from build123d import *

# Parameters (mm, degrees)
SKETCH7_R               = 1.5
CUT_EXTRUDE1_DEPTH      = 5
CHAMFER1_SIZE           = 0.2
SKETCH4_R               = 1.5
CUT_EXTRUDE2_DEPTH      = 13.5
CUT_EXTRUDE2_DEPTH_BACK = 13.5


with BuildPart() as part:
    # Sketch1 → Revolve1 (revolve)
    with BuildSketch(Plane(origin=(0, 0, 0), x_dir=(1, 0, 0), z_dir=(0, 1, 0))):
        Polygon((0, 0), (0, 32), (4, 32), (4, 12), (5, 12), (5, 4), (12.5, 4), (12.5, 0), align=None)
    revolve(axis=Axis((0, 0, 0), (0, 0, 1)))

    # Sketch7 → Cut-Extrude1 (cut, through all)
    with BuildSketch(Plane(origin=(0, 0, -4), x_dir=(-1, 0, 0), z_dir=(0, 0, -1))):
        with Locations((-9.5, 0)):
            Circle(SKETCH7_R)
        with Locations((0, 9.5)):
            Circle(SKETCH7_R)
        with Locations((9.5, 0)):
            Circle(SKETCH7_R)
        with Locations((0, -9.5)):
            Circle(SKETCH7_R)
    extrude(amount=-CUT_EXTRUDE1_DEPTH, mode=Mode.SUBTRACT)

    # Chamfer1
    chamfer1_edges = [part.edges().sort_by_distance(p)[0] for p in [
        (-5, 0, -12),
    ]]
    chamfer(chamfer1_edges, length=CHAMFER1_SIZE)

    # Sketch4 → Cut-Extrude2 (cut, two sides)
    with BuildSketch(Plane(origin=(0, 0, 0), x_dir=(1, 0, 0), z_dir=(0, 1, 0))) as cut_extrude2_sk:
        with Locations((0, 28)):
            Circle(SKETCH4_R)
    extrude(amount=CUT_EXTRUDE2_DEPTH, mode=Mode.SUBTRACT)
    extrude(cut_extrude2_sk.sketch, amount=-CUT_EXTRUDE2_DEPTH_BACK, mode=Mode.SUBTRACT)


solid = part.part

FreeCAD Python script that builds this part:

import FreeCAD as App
import Part
import Sketcher
from FreeCAD import Vector
Q = App.Units.Quantity


def edges_at(feature, points):
    """Names of the edges that pass closest to the given points."""
    edges = feature.Shape.Edges
    near = lambda p: min(range(len(edges)), key=lambda i: edges[i].distToShape(Part.Vertex(*p))[0])
    return sorted({f"Edge{near(p) + 1}" for p in points})


def add_polygon(sketch, points):
    """Adds a closed chain of lines whose ends are joined by coincident constraints."""
    first, n = sketch.GeometryCount, len(points)
    for a, b in zip(points, points[1:] + points[:1]):
        sketch.addGeometry(Part.LineSegment(App.Vector(*a, 0), App.Vector(*b, 0)), False)
    for i in range(n):
        sketch.addConstraint(Sketcher.Constraint("Coincident", first + i, 2, first + (i + 1) % n, 1))

doc = App.newDocument("Part")
body = doc.addObject("PartDesign::Body", "Body")

# Sketch on XZ plane
sketch1 = doc.addObject("Sketcher::SketchObject", "Sketch")
body.addObject(sketch1)
sketch1.AttachmentSupport = (doc.XZ_Plane, [""])
sketch1.MapMode = "FlatFace"
add_polygon(sketch1, [(0, -32), (0, 0), (12.5, 0), (12.5, -4), (5, -4), (5, -12), (4, -12), (4, -32)])  # lines 0-7
sketch1.addConstraint(Sketcher.Constraint("Vertical", 0))
sketch1.addConstraint(Sketcher.Constraint("Horizontal", 1))
sketch1.addConstraint(Sketcher.Constraint("Vertical", 2))
sketch1.addConstraint(Sketcher.Constraint("Horizontal", 3))
sketch1.addConstraint(Sketcher.Constraint("Vertical", 4))
sketch1.addConstraint(Sketcher.Constraint("Horizontal", 5))
sketch1.addConstraint(Sketcher.Constraint("Vertical", 6))
sketch1.addConstraint(Sketcher.Constraint("Horizontal", 7))
sketch1.addConstraint(Sketcher.Constraint("Coincident", 0, 2, -1, 1))
sketch1.addConstraint(Sketcher.Constraint("Equal", 7, 2))
sketch1.addConstraint(Sketcher.Constraint("DistanceX", 5, 2, 5, 1, Q("1 mm")))
sketch1.addConstraint(Sketcher.Constraint("DistanceX", 7, 2, 7, 1, Q("4 mm")))
sketch1.addConstraint(Sketcher.Constraint("DistanceY", 0, 1, 0, 2, Q("32 mm")))
sketch1.addConstraint(Sketcher.Constraint("DistanceY", 4, 2, 4, 1, Q("8 mm")))
sketch1.addConstraint(Sketcher.Constraint("DistanceX", 1, 1, 1, 2, Q("12.5 mm")))
revolution = doc.addObject("PartDesign::Revolution", "Revolution")
body.addObject(revolution)
revolution.Profile = sketch1
revolution.ReferenceAxis = (sketch1, ["V_Axis"])
revolution.Angle = 360

# Sketch on XY plane
sketch2 = doc.addObject("Sketcher::SketchObject", "Sketch001")
body.addObject(sketch2)
sketch2.AttachmentSupport = (doc.XY_Plane, [""])
sketch2.MapMode = "FlatFace"
sketch2.AttachmentOffset = App.Placement(Vector(0, 0, -4), App.Rotation())
sketch2.addGeometry(Part.Circle(Vector(9.5, 0, 0), Vector(0, 0, 1), 1.5), False)
sketch2.addGeometry(Part.Circle(Vector(0, 9.5, 0), Vector(0, 0, 1), 1.5), False)
sketch2.addGeometry(Part.Circle(Vector(-9.5, 0, 0), Vector(0, 0, 1), 1.5), False)
sketch2.addGeometry(Part.Circle(Vector(0, -9.5, 0), Vector(0, 0, 1), 1.5), False)
sketch2.addConstraint(Sketcher.Constraint("Equal", 0, 1))
sketch2.addConstraint(Sketcher.Constraint("Equal", 1, 2))
sketch2.addConstraint(Sketcher.Constraint("Equal", 2, 3))
sketch2.addConstraint(Sketcher.Constraint("Symmetric", 0, 3, 2, 3, -1, 1))
sketch2.addConstraint(Sketcher.Constraint("Symmetric", 1, 3, 3, 3, -1, 1))
sketch2.addConstraint(Sketcher.Constraint("PointOnObject", 0, 3, -1))
sketch2.addConstraint(Sketcher.Constraint("PointOnObject", 1, 3, -2))
sketch2.addConstraint(Sketcher.Constraint("Diameter", 0, Q("3 mm")))
sketch2.addConstraint(Sketcher.Constraint("DistanceX", 2, 3, 0, 3, Q("19 mm")))
sketch2.addConstraint(Sketcher.Constraint("DistanceY", 3, 3, 1, 3, Q("19 mm")))
pocket1 = doc.addObject("PartDesign::Pocket", "Pocket")
body.addObject(pocket1)
pocket1.Profile = sketch2
pocket1.Type = "ThroughAll"
pocket1.Reversed = True
doc.recompute()

chamfer = doc.addObject("PartDesign::Chamfer", "Chamfer")
body.addObject(chamfer)
chamfer.Base = (pocket1, edges_at(pocket1, [(-5, 0, -12)]))
chamfer.Size = 0.2

# Sketch on XZ plane
sketch3 = doc.addObject("Sketcher::SketchObject", "Sketch002")
body.addObject(sketch3)
sketch3.AttachmentSupport = (doc.XZ_Plane, [""])
sketch3.MapMode = "FlatFace"
sketch3.addGeometry(Part.Circle(Vector(0, -28, 0), Vector(0, 0, 1), 1.5), False)
sketch3.addConstraint(Sketcher.Constraint("PointOnObject", 0, 3, -2))
sketch3.addConstraint(Sketcher.Constraint("Diameter", 0, Q("3 mm")))
sketch3.addConstraint(Sketcher.Constraint("DistanceY", 0, 3, -1, 1, Q("28 mm")))
pocket2 = doc.addObject("PartDesign::Pocket", "Pocket001")
body.addObject(pocket2)
pocket2.Profile = sketch3
pocket2.Type = "ThroughAll"
pocket2.Midplane = True

doc.recompute()
